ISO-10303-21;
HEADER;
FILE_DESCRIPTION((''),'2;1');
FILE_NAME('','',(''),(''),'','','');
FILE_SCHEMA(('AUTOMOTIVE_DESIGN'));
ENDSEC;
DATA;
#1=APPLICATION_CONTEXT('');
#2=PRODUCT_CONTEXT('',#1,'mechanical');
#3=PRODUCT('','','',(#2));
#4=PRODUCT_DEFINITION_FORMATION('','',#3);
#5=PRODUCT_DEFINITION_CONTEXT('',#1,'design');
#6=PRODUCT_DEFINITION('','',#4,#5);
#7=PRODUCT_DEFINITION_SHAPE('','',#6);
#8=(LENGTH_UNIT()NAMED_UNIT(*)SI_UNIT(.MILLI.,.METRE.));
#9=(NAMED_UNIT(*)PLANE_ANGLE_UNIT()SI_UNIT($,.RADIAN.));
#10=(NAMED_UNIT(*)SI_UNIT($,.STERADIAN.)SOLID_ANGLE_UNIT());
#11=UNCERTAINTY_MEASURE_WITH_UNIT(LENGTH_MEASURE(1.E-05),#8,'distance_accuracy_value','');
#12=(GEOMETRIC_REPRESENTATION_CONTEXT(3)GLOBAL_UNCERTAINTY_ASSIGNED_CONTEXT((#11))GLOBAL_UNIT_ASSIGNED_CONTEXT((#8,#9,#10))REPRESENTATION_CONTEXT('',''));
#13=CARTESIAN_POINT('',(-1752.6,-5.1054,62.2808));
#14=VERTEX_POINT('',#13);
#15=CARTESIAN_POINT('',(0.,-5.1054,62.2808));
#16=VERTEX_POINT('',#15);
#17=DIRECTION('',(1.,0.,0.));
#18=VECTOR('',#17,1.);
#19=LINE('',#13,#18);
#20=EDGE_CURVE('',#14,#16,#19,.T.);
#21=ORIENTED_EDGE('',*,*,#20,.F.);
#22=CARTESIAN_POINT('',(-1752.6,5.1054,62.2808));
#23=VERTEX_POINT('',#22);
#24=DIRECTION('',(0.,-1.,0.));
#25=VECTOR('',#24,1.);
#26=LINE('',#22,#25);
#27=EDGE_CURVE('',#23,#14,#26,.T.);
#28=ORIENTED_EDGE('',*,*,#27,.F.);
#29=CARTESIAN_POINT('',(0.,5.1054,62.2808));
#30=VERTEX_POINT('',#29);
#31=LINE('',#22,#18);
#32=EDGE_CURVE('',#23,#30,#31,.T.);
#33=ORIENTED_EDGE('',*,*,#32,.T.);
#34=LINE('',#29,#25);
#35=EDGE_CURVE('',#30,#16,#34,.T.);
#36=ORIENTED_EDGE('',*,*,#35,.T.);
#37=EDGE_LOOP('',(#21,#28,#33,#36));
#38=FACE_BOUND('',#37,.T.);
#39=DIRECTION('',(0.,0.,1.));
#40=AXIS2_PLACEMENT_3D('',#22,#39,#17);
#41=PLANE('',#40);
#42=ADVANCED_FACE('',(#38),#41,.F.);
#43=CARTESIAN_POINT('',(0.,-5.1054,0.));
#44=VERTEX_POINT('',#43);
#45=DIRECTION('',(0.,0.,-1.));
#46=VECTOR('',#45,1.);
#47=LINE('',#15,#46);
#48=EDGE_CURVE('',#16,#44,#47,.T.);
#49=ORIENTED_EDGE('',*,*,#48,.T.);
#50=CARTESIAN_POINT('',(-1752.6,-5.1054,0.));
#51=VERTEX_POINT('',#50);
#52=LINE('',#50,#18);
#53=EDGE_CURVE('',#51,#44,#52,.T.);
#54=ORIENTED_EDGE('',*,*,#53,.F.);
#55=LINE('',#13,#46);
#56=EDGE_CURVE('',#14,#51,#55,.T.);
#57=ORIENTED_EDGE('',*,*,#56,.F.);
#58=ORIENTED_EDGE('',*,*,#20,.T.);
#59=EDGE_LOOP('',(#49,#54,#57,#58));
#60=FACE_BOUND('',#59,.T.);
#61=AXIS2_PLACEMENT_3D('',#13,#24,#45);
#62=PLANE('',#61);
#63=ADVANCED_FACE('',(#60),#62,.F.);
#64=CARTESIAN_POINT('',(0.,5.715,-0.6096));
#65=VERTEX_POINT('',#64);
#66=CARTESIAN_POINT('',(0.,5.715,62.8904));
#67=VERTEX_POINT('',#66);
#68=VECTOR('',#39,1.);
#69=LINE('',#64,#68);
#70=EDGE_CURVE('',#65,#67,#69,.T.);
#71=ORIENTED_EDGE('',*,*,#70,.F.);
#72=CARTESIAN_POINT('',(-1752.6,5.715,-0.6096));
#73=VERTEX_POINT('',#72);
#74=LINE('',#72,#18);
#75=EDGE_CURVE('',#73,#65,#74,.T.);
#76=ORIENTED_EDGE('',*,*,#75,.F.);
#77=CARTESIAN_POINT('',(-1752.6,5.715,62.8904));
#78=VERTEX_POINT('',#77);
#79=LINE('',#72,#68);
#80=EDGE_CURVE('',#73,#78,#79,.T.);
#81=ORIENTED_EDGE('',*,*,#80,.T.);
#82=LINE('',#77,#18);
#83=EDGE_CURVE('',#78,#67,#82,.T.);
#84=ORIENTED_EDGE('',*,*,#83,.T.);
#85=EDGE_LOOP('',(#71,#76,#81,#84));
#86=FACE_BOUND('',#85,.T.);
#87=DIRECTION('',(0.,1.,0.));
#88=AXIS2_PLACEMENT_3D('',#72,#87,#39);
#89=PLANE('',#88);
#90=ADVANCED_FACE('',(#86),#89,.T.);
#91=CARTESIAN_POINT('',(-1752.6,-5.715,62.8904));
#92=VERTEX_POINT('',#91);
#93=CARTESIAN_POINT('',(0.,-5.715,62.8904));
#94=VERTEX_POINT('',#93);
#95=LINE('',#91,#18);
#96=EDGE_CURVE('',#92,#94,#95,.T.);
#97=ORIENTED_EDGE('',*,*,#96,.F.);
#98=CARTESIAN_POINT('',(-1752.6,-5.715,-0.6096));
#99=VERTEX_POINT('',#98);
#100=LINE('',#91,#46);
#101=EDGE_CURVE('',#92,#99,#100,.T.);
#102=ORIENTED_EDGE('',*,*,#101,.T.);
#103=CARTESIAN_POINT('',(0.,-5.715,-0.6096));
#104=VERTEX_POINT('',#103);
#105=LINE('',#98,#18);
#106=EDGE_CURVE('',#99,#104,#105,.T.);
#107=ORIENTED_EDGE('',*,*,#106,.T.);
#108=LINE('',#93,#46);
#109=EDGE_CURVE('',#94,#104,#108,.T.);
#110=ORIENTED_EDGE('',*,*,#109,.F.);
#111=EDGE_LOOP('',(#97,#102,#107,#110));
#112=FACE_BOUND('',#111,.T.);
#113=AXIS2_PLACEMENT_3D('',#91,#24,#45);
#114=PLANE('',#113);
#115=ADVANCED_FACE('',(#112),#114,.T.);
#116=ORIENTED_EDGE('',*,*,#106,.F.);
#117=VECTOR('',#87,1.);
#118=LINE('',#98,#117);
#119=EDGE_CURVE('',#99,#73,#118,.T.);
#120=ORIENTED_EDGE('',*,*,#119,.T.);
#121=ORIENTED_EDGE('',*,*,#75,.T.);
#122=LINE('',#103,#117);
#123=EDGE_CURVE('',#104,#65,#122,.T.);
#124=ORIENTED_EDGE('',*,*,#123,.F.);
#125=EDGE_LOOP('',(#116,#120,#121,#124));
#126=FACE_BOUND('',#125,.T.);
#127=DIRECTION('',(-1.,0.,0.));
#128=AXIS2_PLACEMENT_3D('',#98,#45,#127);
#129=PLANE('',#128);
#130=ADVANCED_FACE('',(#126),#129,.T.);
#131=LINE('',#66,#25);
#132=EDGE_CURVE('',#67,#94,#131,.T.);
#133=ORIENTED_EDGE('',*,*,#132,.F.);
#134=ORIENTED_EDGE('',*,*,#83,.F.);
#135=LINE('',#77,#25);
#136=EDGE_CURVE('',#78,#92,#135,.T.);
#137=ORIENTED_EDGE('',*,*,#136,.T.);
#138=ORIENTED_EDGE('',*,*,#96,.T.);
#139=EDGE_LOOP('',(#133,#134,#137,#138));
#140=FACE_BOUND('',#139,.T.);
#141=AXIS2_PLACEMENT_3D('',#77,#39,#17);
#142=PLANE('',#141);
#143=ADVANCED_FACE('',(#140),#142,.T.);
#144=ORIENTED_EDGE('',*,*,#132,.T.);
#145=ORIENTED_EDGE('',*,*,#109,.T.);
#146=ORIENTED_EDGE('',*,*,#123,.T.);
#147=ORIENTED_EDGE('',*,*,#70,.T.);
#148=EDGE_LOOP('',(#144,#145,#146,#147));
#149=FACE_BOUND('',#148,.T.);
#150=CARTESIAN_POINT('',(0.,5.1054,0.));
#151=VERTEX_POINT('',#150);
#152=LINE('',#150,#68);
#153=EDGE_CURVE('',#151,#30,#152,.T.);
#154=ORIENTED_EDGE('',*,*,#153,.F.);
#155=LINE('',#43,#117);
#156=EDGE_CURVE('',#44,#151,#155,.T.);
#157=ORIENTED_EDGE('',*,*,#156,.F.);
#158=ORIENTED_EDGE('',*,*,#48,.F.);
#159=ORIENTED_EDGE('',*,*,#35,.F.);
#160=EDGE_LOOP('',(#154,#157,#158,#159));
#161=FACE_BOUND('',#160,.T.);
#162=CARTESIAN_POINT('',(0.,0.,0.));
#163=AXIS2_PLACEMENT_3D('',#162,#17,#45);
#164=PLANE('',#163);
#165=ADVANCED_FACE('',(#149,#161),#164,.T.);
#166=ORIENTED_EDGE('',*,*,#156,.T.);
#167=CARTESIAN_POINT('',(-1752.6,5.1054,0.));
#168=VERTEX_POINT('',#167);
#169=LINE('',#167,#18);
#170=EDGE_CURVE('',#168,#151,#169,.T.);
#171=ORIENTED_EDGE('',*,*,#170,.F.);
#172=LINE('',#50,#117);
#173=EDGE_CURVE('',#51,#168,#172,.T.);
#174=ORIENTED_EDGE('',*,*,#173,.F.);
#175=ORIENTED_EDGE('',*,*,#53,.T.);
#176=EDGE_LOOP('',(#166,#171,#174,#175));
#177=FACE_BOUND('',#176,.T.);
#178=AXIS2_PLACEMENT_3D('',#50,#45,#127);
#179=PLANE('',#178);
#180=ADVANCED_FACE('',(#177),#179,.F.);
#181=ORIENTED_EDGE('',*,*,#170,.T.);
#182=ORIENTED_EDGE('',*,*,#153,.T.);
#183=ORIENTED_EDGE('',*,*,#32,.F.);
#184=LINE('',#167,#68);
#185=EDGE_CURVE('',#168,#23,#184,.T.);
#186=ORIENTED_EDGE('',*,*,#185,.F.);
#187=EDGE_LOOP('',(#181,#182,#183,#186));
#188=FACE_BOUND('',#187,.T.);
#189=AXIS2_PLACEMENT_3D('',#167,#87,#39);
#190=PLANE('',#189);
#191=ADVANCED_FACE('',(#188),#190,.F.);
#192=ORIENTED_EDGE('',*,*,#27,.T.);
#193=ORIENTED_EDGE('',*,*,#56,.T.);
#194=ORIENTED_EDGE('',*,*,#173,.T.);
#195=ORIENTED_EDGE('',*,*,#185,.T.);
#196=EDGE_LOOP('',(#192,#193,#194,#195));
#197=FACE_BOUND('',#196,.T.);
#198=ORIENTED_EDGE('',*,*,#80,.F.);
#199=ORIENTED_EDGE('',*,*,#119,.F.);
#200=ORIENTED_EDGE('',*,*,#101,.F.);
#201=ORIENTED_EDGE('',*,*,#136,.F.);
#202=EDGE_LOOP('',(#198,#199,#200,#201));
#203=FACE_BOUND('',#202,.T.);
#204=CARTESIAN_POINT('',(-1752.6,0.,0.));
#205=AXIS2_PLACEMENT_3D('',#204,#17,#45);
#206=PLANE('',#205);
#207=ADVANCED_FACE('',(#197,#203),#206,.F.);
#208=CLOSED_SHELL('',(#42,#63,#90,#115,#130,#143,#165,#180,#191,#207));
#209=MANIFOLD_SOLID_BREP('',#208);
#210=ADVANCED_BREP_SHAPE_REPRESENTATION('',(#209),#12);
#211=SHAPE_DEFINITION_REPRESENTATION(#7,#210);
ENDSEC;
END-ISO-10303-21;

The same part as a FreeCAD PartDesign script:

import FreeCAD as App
import Part
import Sketcher
Q = App.Units.Quantity

doc = App.newDocument("Part")
body = doc.addObject("PartDesign::Body", "Body")

sketch1 = doc.addObject("Sketcher::SketchObject", "Sketch")
body.addObject(sketch1)
sketch1.AttachmentSupport = (doc.YZ_Plane, [""])
sketch1.MapMode = "FlatFace"
sketch1.addGeometry(Part.LineSegment(App.Vector(6, 63, 0), App.Vector(-6, 63, 0)), False)
sketch1.addGeometry(Part.LineSegment(App.Vector(-6, 63, 0), App.Vector(-6, -1, 0)), False)
sketch1.addGeometry(Part.LineSegment(App.Vector(-6, -1, 0), App.Vector(6, -1, 0)), False)
sketch1.addGeometry(Part.LineSegment(App.Vector(6, -1, 0), App.Vector(6, 63, 0)), False)
sketch1.addGeometry(Part.LineSegment(App.Vector(-5, 0, 0), App.Vector(-5, 62, 0)), False)
sketch1.addGeometry(Part.LineSegment(App.Vector(-5, 62, 0), App.Vector(5, 62, 0)), False)
sketch1.addGeometry(Part.LineSegment(App.Vector(5, 62, 0), App.Vector(5, 0, 0)), False)
sketch1.addGeometry(Part.LineSegment(App.Vector(5, 0, 0), App.Vector(-5, 0, 0)), False)
sketch1.addConstraint(Sketcher.Constraint("Coincident", 0, 2, 1, 1))
sketch1.addConstraint(Sketcher.Constraint("Coincident", 1, 2, 2, 1))
sketch1.addConstraint(Sketcher.Constraint("Coincident", 2, 2, 3, 1))
sketch1.addConstraint(Sketcher.Constraint("Coincident", 3, 2, 0, 1))
sketch1.addConstraint(Sketcher.Constraint("Coincident", 4, 2, 5, 1))
sketch1.addConstraint(Sketcher.Constraint("Coincident", 5, 2, 6, 1))
sketch1.addConstraint(Sketcher.Constraint("Coincident", 6, 2, 7, 1))
sketch1.addConstraint(Sketcher.Constraint("Coincident", 7, 2, 4, 1))
sketch1.addConstraint(Sketcher.Constraint("Horizontal", 0))
sketch1.addConstraint(Sketcher.Constraint("Vertical", 1))
sketch1.addConstraint(Sketcher.Constraint("Horizontal", 2))
sketch1.addConstraint(Sketcher.Constraint("Vertical", 3))
sketch1.addConstraint(Sketcher.Constraint("Vertical", 4))
sketch1.addConstraint(Sketcher.Constraint("Horizontal", 5))
sketch1.addConstraint(Sketcher.Constraint("Vertical", 6))
sketch1.addConstraint(Sketcher.Constraint("Horizontal", 7))
sketch1.addConstraint(Sketcher.Constraint("Symmetric", 6, 2, 7, 2, -1, 1))
sketch1.addConstraint(Sketcher.Constraint("DistanceY", 1, 2, 1, 1, Q("2.5 in")))
sketch1.addConstraint(Sketcher.Constraint("DistanceX", 0, 2, 0, 1, Q("0.45 in")))
sketch1.addConstraint(Sketcher.Constraint("DistanceX", 5, 1, 5, 2, Q("0.402 in")))
sketch1.addConstraint(Sketcher.Constraint("DistanceY", 4, 1, 4, 2, Q("2.452 in")))
sketch1.addConstraint(Sketcher.Constraint("DistanceX", 0, 2, -1, 1, Q("0.225 in")))
sketch1.addConstraint(Sketcher.Constraint("DistanceY", -1, 1, 0, 2, Q("2.476 in")))
pad1 = doc.addObject("PartDesign::Pad", "Pad")
body.addObject(pad1)
pad1.Profile = sketch1
pad1.Length = Q("69 in")
pad1.Reversed = True

doc.recompute()
